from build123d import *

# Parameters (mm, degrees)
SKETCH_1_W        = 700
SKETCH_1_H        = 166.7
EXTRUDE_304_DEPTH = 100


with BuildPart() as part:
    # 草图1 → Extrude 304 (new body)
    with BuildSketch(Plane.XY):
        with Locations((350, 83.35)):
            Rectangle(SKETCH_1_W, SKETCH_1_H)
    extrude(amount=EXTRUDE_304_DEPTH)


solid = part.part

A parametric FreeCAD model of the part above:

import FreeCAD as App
import Part
import Sketcher

V = App.Vector


def add_polygon(sketch, points):
    """Adds a closed chain of lines whose ends are joined by coincident constraints."""
    first, n = sketch.GeometryCount, len(points)
    for a, b in zip(points, points[1:] + points[:1]):
        sketch.addGeometry(Part.LineSegment(App.Vector(*a, 0), App.Vector(*b, 0)), False)
    for i in range(n):
        sketch.addConstraint(Sketcher.Constraint("Coincident", first + i, 2, first + (i + 1) % n, 1))

doc = App.newDocument("Part")
body = doc.addObject("PartDesign::Body", "Body")

sketch1 = doc.addObject("Sketcher::SketchObject", "Sketch")
body.addObject(sketch1)
sketch1.AttachmentSupport = (doc.XY_Plane, [""])
sketch1.MapMode = "FlatFace"
add_polygon(sketch1, [(0, 166.7), (0, 0), (700, 0), (700, 166.7)])
sketch1.addConstraint([
    Sketcher.Constraint("Vertical", 0),
    Sketcher.Constraint("Horizontal", 1),
    Sketcher.Constraint("Vertical", 2),
    Sketcher.Constraint("Horizontal", 3),
    Sketcher.Constraint("Coincident", 0, 2, -1, 1),
    Sketcher.Constraint("DistanceX", 1, 1, 1, 2, 700.0),
    Sketcher.Constraint("DistanceY", 0, 2, 0, 1, 166.7),
])
pad1 = doc.addObject("PartDesign::Pad", "Pad")
body.addObject(pad1)
pad1.Profile = sketch1
pad1.Length = 100

doc.recompute()
